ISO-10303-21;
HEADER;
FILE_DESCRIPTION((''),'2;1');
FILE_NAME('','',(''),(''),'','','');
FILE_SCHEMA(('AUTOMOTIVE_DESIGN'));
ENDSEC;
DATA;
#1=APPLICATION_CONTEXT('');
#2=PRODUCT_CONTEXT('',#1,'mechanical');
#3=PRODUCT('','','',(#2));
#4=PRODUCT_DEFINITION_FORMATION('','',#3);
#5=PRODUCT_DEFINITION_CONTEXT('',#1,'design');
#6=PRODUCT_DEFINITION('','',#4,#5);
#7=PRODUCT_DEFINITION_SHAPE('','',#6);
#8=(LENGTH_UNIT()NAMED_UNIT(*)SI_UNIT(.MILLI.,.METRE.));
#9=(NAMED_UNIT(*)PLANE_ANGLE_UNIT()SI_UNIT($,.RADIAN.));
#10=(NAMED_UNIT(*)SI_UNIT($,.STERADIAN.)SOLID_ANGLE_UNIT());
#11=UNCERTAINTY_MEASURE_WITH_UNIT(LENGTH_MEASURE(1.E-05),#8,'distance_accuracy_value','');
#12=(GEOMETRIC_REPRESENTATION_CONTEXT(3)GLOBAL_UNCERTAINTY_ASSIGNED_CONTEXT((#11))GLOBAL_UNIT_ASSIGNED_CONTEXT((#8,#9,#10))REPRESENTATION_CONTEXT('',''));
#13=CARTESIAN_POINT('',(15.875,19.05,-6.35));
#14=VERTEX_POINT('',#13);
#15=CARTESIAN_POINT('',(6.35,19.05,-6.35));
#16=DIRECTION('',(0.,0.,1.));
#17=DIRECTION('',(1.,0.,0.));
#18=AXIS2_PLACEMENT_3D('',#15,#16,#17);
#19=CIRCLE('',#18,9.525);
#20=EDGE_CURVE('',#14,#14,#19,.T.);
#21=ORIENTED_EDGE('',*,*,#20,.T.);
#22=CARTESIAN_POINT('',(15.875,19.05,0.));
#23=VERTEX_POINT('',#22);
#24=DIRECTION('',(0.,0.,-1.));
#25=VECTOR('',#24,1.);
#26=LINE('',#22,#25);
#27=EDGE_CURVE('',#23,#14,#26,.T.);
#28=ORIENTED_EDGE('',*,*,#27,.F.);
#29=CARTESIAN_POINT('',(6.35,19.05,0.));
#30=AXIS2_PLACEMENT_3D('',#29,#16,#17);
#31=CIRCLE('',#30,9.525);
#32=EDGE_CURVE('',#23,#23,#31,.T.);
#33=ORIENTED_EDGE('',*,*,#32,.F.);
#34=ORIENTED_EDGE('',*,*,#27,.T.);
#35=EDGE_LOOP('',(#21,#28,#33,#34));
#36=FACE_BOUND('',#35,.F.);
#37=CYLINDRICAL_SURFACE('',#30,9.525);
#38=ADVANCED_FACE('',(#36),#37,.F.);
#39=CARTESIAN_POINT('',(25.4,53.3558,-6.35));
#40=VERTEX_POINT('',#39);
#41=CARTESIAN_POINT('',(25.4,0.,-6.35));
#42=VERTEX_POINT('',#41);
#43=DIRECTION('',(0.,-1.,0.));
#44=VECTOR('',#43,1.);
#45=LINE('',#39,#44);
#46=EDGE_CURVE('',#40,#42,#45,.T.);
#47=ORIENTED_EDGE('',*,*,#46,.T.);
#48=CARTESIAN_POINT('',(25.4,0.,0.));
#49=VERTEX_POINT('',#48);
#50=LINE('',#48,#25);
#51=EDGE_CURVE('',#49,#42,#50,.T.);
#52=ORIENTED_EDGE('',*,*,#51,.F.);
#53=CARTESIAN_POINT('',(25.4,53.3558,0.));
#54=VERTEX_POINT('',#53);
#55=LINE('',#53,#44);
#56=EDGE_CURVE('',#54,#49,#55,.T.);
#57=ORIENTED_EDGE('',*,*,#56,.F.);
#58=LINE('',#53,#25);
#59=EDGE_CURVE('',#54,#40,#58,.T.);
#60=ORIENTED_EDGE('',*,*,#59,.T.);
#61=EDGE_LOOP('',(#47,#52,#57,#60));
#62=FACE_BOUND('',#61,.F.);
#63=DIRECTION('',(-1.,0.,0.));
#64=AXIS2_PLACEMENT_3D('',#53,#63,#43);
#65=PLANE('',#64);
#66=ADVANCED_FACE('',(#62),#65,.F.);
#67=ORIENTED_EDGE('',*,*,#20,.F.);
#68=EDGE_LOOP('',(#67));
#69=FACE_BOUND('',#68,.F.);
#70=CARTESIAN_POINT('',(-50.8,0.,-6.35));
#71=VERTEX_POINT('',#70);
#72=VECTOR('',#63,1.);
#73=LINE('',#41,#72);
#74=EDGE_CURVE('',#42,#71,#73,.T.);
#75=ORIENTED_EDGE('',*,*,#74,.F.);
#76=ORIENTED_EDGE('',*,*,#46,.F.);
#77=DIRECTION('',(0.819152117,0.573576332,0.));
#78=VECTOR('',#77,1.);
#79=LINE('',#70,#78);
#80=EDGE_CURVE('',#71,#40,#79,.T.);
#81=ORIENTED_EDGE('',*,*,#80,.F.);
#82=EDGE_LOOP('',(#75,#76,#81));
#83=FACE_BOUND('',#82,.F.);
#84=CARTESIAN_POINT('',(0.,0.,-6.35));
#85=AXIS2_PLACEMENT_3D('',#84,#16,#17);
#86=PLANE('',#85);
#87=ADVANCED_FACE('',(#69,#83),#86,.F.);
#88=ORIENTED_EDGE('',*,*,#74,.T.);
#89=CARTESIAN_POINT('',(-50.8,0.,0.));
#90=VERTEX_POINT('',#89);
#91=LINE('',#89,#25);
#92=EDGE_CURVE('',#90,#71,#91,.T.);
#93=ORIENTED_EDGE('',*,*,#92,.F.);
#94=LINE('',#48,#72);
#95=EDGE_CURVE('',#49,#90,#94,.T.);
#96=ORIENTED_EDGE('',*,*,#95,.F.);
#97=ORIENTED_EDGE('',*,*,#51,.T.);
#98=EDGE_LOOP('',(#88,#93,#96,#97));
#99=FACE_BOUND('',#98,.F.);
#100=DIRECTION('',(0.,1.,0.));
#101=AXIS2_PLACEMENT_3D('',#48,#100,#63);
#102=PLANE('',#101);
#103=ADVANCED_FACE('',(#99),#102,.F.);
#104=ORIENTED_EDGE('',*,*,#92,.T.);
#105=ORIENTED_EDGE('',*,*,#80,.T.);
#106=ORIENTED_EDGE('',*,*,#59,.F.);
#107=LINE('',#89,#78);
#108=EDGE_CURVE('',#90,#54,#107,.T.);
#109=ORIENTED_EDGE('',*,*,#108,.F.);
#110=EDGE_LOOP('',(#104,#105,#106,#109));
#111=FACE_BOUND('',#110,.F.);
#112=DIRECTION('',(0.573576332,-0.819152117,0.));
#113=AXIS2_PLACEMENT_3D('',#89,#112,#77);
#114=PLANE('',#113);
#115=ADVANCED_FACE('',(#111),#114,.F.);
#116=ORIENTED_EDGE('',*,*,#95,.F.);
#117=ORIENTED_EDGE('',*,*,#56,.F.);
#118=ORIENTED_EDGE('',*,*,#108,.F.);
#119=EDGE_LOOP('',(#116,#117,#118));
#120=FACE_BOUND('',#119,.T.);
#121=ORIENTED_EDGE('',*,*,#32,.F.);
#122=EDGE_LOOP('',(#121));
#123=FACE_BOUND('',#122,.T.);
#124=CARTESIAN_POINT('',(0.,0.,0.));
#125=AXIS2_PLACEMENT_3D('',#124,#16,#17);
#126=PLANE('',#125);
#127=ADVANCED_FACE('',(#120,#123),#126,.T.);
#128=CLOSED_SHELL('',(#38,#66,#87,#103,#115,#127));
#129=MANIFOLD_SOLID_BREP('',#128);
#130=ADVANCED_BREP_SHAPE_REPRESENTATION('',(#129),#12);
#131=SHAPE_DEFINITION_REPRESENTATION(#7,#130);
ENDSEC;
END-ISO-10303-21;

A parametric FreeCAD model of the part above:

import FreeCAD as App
import Part
import Sketcher

V = App.Vector
Q = App.Units.Quantity

doc = App.newDocument("Part")
body = doc.addObject("PartDesign::Body", "Body")

sketch1 = body.newObject("Sketcher::SketchObject", "Sketch")
sketch1.AttachmentSupport = (doc.getObject("XY_Plane"), [""])
sketch1.MapMode = "FlatFace"
sketch1.addGeometry([
    Part.LineSegment(V(25, 53, 0), V(-51, 0, 0)),
    Part.LineSegment(V(-51, 0, 0), V(25, 0, 0)),
    Part.LineSegment(V(25, 0, 0), V(25, 53, 0)),
    Part.Circle(V(6, 19, 0), V(0, 0, 1), 10),
], False)
sketch1.addConstraint([
    Sketcher.Constraint("Coincident", 0, 2, 1, 1),
    Sketcher.Constraint("Coincident", 1, 2, 2, 1),
    Sketcher.Constraint("Coincident", 2, 2, 0, 1),
    Sketcher.Constraint("Horizontal", 1),
    Sketcher.Constraint("Vertical", 2),
    Sketcher.Constraint("PointOnObject", 0, 2, -1),
    Sketcher.Constraint("Diameter", 3, Q("0.75 in")),
    Sketcher.Constraint("DistanceX", 1, 1, 1, 2, Q("3 in")),
    Sketcher.Constraint("DistanceX", -1, 1, 1, 2, Q("1 in")),
    Sketcher.Constraint("DistanceY", -1, 1, 3, 3, Q("0.75 in")),
    Sketcher.Constraint("DistanceX", 3, 3, 1, 2, Q("0.75 in")),
    Sketcher.Constraint("Angle", 0, Q("-145 deg")),
])
pad1 = body.newObject("PartDesign::Pad", "Pad")
pad1.Profile = sketch1
pad1.Length = Q("0.25 in")
pad1.Reversed = True

doc.recompute()
